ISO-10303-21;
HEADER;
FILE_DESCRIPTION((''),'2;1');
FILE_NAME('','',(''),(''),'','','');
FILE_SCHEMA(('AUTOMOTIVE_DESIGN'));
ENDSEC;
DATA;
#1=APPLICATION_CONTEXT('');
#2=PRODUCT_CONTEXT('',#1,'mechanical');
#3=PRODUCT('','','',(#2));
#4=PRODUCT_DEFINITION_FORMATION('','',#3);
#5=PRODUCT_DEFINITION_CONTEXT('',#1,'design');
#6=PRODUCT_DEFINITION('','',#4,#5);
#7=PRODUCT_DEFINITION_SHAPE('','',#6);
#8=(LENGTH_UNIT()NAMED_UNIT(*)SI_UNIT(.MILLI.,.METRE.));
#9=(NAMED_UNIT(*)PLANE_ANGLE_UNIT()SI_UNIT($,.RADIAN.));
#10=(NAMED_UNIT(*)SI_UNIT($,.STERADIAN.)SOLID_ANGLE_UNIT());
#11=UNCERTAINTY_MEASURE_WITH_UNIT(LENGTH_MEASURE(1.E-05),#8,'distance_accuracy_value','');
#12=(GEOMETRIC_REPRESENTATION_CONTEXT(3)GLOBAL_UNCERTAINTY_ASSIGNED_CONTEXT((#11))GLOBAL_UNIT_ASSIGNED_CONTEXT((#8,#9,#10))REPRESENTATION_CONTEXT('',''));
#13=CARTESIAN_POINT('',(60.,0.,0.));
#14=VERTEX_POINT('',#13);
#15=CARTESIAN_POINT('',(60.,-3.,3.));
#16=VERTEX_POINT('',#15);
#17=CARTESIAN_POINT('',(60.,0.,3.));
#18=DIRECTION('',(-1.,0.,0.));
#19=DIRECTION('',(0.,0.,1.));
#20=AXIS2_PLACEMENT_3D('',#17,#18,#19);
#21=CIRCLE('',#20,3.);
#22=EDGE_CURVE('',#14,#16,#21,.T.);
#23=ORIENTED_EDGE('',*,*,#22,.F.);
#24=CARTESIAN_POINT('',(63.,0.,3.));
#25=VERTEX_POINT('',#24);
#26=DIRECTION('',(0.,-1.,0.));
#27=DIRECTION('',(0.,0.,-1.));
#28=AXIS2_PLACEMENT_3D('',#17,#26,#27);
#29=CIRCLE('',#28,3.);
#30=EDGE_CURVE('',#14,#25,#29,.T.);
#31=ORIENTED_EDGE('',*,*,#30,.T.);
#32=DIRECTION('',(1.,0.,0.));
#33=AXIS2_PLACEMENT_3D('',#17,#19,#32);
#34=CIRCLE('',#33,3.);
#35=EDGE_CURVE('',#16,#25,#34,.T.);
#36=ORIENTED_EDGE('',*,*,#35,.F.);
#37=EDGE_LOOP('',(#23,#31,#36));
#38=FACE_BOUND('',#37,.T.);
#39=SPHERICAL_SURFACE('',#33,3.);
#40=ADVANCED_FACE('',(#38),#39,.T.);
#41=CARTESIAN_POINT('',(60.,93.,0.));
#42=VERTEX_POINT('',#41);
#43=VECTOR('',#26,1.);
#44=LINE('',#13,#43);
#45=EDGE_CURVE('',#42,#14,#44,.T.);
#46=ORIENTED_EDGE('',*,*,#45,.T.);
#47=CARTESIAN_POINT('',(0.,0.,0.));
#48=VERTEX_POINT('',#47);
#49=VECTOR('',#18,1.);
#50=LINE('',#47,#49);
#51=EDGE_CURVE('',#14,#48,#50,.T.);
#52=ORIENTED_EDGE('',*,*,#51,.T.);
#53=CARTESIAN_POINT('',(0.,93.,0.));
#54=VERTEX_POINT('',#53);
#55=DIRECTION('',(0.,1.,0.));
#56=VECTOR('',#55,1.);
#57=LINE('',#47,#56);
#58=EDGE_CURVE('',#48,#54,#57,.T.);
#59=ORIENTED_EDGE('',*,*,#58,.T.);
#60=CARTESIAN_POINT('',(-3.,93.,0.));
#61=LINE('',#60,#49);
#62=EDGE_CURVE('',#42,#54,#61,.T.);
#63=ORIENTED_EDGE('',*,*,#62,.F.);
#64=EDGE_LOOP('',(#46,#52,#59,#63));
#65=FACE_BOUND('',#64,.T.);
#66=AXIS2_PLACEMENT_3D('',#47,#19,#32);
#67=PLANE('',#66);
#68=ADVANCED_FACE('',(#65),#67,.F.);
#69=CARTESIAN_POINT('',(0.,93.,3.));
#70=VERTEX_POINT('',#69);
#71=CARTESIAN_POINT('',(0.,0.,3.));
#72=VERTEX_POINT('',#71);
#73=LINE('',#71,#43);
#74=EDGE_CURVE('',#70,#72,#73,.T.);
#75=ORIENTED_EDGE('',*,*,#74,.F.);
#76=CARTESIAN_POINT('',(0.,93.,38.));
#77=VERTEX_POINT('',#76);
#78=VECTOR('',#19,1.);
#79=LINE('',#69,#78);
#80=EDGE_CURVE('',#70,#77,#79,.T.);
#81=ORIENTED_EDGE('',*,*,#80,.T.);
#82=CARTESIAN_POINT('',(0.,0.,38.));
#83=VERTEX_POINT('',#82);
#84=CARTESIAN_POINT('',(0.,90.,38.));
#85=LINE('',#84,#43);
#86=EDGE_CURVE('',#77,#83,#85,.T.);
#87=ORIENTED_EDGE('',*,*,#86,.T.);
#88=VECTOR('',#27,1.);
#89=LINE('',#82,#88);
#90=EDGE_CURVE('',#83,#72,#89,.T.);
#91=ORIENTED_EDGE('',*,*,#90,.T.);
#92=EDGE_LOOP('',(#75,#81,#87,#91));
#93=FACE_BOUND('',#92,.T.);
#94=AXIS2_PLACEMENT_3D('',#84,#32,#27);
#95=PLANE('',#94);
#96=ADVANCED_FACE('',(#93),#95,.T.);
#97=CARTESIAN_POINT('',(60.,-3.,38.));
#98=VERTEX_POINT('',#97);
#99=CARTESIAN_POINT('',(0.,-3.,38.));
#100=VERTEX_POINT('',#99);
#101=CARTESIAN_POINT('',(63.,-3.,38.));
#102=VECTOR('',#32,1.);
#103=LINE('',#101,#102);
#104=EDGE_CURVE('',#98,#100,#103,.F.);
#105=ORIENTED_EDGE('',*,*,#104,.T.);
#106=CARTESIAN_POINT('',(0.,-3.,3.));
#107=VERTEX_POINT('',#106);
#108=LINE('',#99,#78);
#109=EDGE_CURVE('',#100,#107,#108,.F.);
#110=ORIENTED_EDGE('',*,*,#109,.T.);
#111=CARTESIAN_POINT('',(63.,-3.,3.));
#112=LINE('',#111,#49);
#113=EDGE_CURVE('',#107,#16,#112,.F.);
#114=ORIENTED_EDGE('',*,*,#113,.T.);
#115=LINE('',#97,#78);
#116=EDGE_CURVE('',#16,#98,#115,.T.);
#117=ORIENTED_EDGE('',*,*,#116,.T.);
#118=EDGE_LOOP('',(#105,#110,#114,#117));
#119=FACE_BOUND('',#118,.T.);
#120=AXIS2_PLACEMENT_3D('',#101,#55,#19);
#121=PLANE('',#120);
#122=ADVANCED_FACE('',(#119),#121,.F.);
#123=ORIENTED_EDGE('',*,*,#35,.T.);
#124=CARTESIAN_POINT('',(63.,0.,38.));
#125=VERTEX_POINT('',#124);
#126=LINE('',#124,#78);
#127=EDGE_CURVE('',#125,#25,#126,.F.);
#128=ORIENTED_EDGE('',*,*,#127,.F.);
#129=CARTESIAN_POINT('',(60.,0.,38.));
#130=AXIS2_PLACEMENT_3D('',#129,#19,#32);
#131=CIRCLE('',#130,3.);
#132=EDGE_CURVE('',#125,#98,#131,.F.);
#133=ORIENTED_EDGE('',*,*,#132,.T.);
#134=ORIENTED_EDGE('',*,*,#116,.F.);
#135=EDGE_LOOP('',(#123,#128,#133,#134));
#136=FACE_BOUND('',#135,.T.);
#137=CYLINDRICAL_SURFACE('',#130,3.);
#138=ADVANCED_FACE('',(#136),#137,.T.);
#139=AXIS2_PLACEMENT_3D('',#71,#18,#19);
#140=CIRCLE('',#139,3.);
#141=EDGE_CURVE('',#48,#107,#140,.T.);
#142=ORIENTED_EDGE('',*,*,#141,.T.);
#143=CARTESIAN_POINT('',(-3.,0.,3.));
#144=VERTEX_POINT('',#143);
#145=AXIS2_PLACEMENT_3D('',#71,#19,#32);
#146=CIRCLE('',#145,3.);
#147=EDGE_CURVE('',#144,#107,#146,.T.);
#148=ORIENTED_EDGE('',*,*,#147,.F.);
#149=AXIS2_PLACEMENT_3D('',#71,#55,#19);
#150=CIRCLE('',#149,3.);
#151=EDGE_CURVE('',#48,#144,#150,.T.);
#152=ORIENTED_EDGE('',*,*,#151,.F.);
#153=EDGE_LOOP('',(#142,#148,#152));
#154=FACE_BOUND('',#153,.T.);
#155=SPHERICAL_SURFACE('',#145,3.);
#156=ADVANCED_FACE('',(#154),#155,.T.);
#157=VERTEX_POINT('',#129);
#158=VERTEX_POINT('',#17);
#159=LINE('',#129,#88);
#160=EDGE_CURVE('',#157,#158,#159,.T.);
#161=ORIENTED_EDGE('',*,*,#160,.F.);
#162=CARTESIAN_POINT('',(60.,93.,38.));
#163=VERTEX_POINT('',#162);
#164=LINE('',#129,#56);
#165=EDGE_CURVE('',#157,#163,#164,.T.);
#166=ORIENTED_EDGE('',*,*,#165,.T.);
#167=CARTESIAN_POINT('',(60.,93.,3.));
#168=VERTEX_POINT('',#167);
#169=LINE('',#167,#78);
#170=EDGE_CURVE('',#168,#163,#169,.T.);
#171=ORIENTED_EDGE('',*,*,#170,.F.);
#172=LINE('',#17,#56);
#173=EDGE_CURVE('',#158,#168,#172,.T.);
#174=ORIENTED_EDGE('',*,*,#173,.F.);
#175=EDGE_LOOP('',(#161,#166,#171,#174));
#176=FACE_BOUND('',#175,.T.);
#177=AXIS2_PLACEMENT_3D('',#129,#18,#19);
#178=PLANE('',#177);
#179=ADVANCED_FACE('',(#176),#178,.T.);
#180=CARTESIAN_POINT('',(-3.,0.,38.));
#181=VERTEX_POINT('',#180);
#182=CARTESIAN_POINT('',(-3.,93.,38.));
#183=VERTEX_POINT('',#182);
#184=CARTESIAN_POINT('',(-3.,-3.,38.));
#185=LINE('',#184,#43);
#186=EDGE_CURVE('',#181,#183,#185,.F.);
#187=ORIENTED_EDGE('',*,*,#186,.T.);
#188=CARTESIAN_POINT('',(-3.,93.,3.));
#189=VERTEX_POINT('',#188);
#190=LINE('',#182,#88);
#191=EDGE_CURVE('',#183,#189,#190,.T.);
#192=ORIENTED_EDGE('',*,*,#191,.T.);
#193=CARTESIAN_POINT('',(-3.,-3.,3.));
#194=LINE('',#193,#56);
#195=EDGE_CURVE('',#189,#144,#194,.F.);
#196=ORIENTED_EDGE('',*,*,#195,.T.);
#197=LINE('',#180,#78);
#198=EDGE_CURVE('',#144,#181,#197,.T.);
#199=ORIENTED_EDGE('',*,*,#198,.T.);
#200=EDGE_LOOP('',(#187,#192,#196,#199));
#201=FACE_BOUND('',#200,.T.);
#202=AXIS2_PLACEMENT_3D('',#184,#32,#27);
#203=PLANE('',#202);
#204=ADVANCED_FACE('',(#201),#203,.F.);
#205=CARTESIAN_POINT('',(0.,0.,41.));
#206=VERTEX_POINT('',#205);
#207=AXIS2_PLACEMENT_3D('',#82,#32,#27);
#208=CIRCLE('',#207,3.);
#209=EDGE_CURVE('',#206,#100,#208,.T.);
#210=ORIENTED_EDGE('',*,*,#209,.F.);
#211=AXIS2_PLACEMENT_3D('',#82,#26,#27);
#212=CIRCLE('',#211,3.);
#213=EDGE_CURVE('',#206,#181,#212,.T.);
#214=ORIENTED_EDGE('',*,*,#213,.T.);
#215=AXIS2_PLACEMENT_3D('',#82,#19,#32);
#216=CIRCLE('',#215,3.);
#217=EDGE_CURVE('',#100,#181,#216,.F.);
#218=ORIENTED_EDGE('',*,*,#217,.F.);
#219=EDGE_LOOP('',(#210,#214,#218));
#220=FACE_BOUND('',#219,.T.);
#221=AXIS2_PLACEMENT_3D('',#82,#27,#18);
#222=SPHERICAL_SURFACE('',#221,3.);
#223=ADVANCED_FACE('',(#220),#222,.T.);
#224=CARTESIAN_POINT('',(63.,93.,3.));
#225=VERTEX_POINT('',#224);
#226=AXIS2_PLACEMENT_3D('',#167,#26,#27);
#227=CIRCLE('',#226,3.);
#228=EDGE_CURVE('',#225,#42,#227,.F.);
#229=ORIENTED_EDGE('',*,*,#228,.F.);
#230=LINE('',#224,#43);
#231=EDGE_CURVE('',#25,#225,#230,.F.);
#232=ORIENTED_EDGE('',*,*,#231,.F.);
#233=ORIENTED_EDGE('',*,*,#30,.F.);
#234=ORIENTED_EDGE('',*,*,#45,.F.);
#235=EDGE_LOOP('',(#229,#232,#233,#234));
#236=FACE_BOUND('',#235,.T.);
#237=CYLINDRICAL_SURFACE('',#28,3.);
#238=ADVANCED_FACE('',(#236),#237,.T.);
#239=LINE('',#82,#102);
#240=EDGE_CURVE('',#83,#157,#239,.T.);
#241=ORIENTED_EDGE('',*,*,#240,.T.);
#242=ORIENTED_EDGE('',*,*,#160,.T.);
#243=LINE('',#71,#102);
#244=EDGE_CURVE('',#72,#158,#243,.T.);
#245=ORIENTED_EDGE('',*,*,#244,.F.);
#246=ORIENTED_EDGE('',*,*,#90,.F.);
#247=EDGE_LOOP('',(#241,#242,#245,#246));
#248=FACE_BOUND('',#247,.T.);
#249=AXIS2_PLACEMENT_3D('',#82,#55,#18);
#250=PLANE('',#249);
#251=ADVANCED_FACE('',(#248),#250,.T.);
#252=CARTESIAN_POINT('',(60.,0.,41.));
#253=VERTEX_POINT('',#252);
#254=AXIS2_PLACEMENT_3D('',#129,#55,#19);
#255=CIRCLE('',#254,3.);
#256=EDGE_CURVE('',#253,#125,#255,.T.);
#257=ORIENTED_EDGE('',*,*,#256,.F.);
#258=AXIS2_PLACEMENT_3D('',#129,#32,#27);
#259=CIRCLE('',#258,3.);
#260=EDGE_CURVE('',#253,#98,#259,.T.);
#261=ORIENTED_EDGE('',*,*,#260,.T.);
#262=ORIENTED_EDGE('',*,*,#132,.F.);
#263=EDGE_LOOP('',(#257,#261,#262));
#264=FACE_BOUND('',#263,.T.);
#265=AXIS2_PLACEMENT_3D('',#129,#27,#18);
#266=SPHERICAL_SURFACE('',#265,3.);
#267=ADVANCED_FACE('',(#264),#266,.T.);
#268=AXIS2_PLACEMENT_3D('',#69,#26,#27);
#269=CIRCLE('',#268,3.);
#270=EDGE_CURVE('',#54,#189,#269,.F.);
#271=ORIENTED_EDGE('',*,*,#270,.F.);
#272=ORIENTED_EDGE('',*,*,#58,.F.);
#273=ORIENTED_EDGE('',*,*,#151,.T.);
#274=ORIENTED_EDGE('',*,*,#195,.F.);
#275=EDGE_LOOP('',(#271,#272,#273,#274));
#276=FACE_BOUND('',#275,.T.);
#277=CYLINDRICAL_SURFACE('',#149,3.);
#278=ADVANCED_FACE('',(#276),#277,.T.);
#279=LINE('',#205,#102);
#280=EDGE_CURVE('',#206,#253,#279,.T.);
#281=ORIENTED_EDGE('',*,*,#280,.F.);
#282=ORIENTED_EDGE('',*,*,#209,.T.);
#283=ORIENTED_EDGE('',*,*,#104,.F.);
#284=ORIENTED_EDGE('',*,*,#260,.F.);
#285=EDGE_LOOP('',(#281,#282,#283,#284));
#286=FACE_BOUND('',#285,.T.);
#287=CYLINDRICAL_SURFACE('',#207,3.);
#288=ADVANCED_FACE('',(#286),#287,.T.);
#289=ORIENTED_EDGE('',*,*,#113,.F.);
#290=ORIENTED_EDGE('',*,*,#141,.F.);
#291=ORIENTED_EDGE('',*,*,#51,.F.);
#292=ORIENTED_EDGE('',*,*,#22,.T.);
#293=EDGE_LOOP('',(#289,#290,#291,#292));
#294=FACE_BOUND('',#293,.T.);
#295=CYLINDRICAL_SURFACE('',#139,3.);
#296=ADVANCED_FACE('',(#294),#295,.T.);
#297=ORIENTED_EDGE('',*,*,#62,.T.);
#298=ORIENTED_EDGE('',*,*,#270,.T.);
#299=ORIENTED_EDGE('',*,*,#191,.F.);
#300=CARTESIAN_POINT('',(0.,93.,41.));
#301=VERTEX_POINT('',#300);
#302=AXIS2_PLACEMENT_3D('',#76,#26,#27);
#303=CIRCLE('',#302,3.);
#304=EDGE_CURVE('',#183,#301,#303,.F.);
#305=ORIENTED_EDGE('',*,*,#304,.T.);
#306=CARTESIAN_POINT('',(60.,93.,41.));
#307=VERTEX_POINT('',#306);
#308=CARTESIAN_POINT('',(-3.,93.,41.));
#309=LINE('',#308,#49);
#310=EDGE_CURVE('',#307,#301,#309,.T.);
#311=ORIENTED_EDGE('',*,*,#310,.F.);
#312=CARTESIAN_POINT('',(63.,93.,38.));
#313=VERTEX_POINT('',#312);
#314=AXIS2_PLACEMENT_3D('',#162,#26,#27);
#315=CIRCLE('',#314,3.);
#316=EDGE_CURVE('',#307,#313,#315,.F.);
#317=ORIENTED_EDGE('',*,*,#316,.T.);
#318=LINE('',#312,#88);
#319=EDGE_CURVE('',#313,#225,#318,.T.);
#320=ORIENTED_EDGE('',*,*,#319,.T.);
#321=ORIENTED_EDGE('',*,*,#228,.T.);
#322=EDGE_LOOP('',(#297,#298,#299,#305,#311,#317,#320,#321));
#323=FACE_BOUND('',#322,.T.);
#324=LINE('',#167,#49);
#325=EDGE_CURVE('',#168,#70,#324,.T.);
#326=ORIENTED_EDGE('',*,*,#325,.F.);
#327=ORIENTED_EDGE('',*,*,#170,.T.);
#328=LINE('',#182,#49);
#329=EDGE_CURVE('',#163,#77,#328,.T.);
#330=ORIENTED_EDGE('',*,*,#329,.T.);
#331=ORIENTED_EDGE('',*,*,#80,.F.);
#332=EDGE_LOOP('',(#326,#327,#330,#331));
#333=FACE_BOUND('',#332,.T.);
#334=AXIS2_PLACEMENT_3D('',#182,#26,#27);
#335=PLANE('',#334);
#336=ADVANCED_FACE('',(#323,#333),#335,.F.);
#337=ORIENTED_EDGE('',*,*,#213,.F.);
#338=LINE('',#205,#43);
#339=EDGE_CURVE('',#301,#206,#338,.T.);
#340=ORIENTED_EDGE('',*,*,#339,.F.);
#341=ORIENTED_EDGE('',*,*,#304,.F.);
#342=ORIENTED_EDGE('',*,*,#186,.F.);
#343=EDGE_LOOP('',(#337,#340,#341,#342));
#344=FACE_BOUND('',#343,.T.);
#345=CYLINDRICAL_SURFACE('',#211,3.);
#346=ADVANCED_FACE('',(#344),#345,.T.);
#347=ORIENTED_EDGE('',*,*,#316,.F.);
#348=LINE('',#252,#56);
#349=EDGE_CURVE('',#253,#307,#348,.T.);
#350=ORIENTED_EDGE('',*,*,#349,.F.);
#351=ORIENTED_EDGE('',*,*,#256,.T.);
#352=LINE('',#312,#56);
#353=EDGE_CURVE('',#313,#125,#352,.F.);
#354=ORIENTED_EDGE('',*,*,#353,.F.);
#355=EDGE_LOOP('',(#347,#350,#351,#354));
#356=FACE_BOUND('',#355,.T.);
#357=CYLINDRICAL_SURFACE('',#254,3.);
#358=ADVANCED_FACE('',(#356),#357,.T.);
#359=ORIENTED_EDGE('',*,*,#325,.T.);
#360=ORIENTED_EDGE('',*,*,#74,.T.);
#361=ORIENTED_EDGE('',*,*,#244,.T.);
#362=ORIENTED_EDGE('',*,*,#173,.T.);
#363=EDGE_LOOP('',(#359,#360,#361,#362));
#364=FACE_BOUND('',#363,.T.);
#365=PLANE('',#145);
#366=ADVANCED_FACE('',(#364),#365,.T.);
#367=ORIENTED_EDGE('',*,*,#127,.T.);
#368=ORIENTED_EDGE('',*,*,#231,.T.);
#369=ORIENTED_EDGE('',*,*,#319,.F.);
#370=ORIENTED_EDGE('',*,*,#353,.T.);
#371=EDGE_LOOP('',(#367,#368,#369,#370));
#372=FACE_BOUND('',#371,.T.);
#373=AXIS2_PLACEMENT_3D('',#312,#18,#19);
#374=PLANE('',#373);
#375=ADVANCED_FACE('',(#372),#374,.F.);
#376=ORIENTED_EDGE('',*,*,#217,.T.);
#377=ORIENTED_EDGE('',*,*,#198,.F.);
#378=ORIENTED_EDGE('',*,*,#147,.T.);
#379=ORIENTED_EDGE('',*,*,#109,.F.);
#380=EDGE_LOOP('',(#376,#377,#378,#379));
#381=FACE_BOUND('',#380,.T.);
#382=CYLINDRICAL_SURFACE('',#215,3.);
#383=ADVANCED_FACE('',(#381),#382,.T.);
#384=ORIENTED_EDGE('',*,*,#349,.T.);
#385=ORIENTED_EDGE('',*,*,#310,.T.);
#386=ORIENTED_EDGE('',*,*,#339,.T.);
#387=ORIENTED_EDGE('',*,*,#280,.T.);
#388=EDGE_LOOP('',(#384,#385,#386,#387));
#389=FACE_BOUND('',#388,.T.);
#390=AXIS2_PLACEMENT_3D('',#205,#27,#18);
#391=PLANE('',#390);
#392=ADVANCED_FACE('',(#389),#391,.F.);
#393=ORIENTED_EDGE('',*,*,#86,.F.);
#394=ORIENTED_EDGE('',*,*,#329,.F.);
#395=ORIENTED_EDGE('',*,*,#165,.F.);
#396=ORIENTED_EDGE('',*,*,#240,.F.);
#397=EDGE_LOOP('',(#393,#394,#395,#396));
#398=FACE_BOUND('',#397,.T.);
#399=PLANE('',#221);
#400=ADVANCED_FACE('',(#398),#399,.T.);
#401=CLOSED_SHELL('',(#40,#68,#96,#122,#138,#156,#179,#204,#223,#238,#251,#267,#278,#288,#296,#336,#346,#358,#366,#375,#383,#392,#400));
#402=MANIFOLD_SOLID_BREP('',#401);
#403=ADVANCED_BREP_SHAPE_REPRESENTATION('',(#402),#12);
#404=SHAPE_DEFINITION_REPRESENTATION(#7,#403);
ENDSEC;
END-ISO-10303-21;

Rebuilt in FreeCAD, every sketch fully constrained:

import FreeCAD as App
import Part
import Sketcher

V = App.Vector


def edges_at(feature, points):
    """Names of the edges that pass closest to the given points."""
    edges = feature.Shape.Edges
    near = lambda p: min(range(len(edges)), key=lambda i: edges[i].distToShape(Part.Vertex(*p))[0])
    return sorted({f"Edge{near(p) + 1}" for p in points})

doc = App.newDocument("Part")
params = doc.addObject("Spreadsheet::Sheet", "Params")
for row, (alias, value) in enumerate([
    ("sketch1_width", "60 mm"),
    ("sketch1_height", "90 mm"),
    ("pad1_length", "3 mm"),
    ("sketch2_width", "66 mm"),
    ("sketch2_width2", "60 mm"),
    ("sketch2_height", "96 mm"),
    ("sketch2_height2", "90 mm"),
    ("pad2_length", "38 mm"),
    ("sketch3_width", "60 mm"),
    ("sketch3_height", "3 mm"),
    ("pocket1_length", "35 mm"),
    ("sketch4_width", "66 mm"),
    ("sketch4_height", "96 mm"),
    ("pad3_length", "3 mm"),
    ("fillet_radius", "3 mm"),
    ("fillet2_radius", "3 mm"),
    ("fillet3_radius", "3 mm"),
    ("fillet4_radius", "3 mm"),
], start=1):
    params.set(f"A{row}", alias)
    params.set(f"B{row}", "=" + value)
    params.setAlias(f"B{row}", alias)

body = doc.addObject("PartDesign::Body", "Body")

# Sketch on XY plane
sketch1 = body.newObject("Sketcher::SketchObject", "Sketch")
sketch1.AttachmentSupport = (doc.getObject("XY_Plane"), [""])
sketch1.MapMode = "FlatFace"
sketch1.addGeometry([
    Part.LineSegment(V(0, 0, 0), V(60, 0, 0)),
    Part.LineSegment(V(60, 0, 0), V(60, 90, 0)),
    Part.LineSegment(V(60, 90, 0), V(0, 90, 0)),
    Part.LineSegment(V(0, 90, 0), V(0, 0, 0)),
], False)
sketch1.addConstraint([
    Sketcher.Constraint("Coincident", 0, 2, 1, 1),
    Sketcher.Constraint("Coincident", 1, 2, 2, 1),
    Sketcher.Constraint("Coincident", 2, 2, 3, 1),
    Sketcher.Constraint("Coincident", 3, 2, 0, 1),
    Sketcher.Constraint("Horizontal", 0),
    Sketcher.Constraint("Vertical", 1),
    Sketcher.Constraint("Horizontal", 2),
    Sketcher.Constraint("Vertical", 3),
    Sketcher.Constraint("Coincident", 3, 2, -1, 1),
    Sketcher.Constraint("DistanceX", 0, 1, 0, 2, 60.0),
    Sketcher.Constraint("DistanceY", 1, 1, 1, 2, 90.0),
])
sketch1.setExpression("Constraints[9]", "Params.sketch1_width")
sketch1.setExpression("Constraints[10]", "Params.sketch1_height")
pad1 = body.newObject("PartDesign::Pad", "Pad")
pad1.Profile = sketch1
pad1.setExpression("Length", "Params.pad1_length")

# Sketch on XY plane
sketch2 = body.newObject("Sketcher::SketchObject", "Sketch001")
sketch2.AttachmentSupport = (doc.getObject("XY_Plane"), [""])
sketch2.MapMode = "FlatFace"
sketch2.addGeometry([
    Part.LineSegment(V(-3, -3, 0), V(63, -3, 0)),  # 0
    Part.LineSegment(V(63, -3, 0), V(63, 93, 0)),  # 1
    Part.LineSegment(V(63, 93, 0), V(-3, 93, 0)),  # 2
    Part.LineSegment(V(-3, 93, 0), V(-3, -3, 0)),  # 3
    Part.LineSegment(V(60, 90, 0), V(60, 0, 0)),  # 4
    Part.LineSegment(V(60, 0, 0), V(0, 0, 0)),  # 5
    Part.LineSegment(V(0, 0, 0), V(0, 90, 0)),  # 6
    Part.LineSegment(V(0, 90, 0), V(60, 90, 0)),  # 7
], False)
sketch2.addConstraint([
    Sketcher.Constraint("Coincident", 0, 2, 1, 1),
    Sketcher.Constraint("Coincident", 1, 2, 2, 1),
    Sketcher.Constraint("Coincident", 2, 2, 3, 1),
    Sketcher.Constraint("Coincident", 3, 2, 0, 1),
    Sketcher.Constraint("Coincident", 4, 2, 5, 1),
    Sketcher.Constraint("Coincident", 5, 2, 6, 1),
    Sketcher.Constraint("Coincident", 6, 2, 7, 1),
    Sketcher.Constraint("Coincident", 7, 2, 4, 1),
    Sketcher.Constraint("Horizontal", 0),
    Sketcher.Constraint("Vertical", 1),
    Sketcher.Constraint("Horizontal", 2),
    Sketcher.Constraint("Vertical", 3),
    Sketcher.Constraint("Vertical", 4),
    Sketcher.Constraint("Horizontal", 5),
    Sketcher.Constraint("Vertical", 6),
    Sketcher.Constraint("Horizontal", 7),
    Sketcher.Constraint("Coincident", 5, 2, -1, 1),
    Sketcher.Constraint("DistanceX", 0, 1, 0, 2, 66.0),
    Sketcher.Constraint("DistanceX", 5, 2, 5, 1, 60.0),
    Sketcher.Constraint("DistanceY", 1, 1, 1, 2, 96.0),
    Sketcher.Constraint("DistanceY", 4, 2, 4, 1, 90.0),
    Sketcher.Constraint("DistanceX", -1, 1, 0, 2, 63.0),
    Sketcher.Constraint("DistanceY", 0, 2, -1, 1, 3.0),
])
sketch2.setExpression("Constraints[17]", "Params.sketch2_width")
sketch2.setExpression("Constraints[18]", "Params.sketch2_width2")
sketch2.setExpression("Constraints[19]", "Params.sketch2_height")
sketch2.setExpression("Constraints[20]", "Params.sketch2_height2")
pad2 = body.newObject("PartDesign::Pad", "Pad001")
pad2.Profile = sketch2
pad2.setExpression("Length", "Params.pad2_length")

# Sketch on XY plane
sketch3 = body.newObject("Sketcher::SketchObject", "Sketch002")
sketch3.AttachmentSupport = (doc.getObject("XY_Plane"), [""])
sketch3.MapMode = "FlatFace"
sketch3.AttachmentOffset = App.Placement(V(0, 0, 38), App.Rotation())
sketch3.addGeometry([
    Part.LineSegment(V(0, 93, 0), V(0, 90, 0)),
    Part.LineSegment(V(0, 90, 0), V(60, 90, 0)),
    Part.LineSegment(V(60, 90, 0), V(60, 93, 0)),
    Part.LineSegment(V(60, 93, 0), V(0, 93, 0)),
], False)
sketch3.addConstraint([
    Sketcher.Constraint("Coincident", 0, 2, 1, 1),
    Sketcher.Constraint("Coincident", 1, 2, 2, 1),
    Sketcher.Constraint("Coincident", 2, 2, 3, 1),
    Sketcher.Constraint("Coincident", 3, 2, 0, 1),
    Sketcher.Constraint("Vertical", 0),
    Sketcher.Constraint("Horizontal", 1),
    Sketcher.Constraint("Vertical", 2),
    Sketcher.Constraint("Horizontal", 3),
    Sketcher.Constraint("PointOnObject", 0, 2, -2),
    Sketcher.Constraint("DistanceX", 1, 1, 1, 2, 60.0),
    Sketcher.Constraint("DistanceY", 0, 2, 0, 1, 3.0),
    Sketcher.Constraint("DistanceY", -1, 1, 0, 2, 90.0),
])
sketch3.setExpression("Constraints[9]", "Params.sketch3_width")
sketch3.setExpression("Constraints[10]", "Params.sketch3_height")
pocket1 = body.newObject("PartDesign::Pocket", "Pocket")
pocket1.Profile = sketch3
pocket1.setExpression("Length", "Params.pocket1_length")

# Sketch on XY plane
sketch4 = body.newObject("Sketcher::SketchObject", "Sketch003")
sketch4.AttachmentSupport = (doc.getObject("XY_Plane"), [""])
sketch4.MapMode = "FlatFace"
sketch4.AttachmentOffset = App.Placement(V(0, 0, 38), App.Rotation())
sketch4.addGeometry([
    Part.LineSegment(V(-3, 93, 0), V(-3, -3, 0)),
    Part.LineSegment(V(-3, -3, 0), V(63, -3, 0)),
    Part.LineSegment(V(63, -3, 0), V(63, 93, 0)),
    Part.LineSegment(V(63, 93, 0), V(-3, 93, 0)),
], False)
sketch4.addConstraint([
    Sketcher.Constraint("Coincident", 0, 2, 1, 1),
    Sketcher.Constraint("Coincident", 1, 2, 2, 1),
    Sketcher.Constraint("Coincident", 2, 2, 3, 1),
    Sketcher.Constraint("Coincident", 3, 2, 0, 1),
    Sketcher.Constraint("Vertical", 0),
    Sketcher.Constraint("Horizontal", 1),
    Sketcher.Constraint("Vertical", 2),
    Sketcher.Constraint("Horizontal", 3),
    Sketcher.Constraint("DistanceX", 1, 1, 1, 2, 66.0),
    Sketcher.Constraint("DistanceY", 0, 2, 0, 1, 96.0),
    Sketcher.Constraint("DistanceX", 0, 2, -1, 1, 3.0),
    Sketcher.Constraint("DistanceY", 0, 2, -1, 1, 3.0),
])
sketch4.setExpression("Constraints[8]", "Params.sketch4_width")
sketch4.setExpression("Constraints[9]", "Params.sketch4_height")
pad3 = body.newObject("PartDesign::Pad", "Pad002")
pad3.Profile = sketch4
pad3.setExpression("Length", "Params.pad3_length")
doc.recompute()

fillet = body.newObject("PartDesign::Fillet", "Fillet")
fillet.Base = (pad3, edges_at(pad3, [(-3, -3, 20.5)]))
fillet.setExpression("Radius", "Params.fillet_radius")
doc.recompute()

fillet2 = body.newObject("PartDesign::Fillet", "Fillet001")
fillet2.Base = (fillet, edges_at(fillet, [(63, -3, 20.5)]))
fillet2.setExpression("Radius", "Params.fillet2_radius")
doc.recompute()

fillet3 = body.newObject("PartDesign::Fillet", "Fillet002")
fillet3.Base = (fillet2, edges_at(fillet2, [
    (-3, 46.5, 41),
    (30, -3, 41),
    (-2.121, -2.121, 41),
    (63, 46.5, 41),
    (62.121, -2.121, 41),
]))
fillet3.setExpression("Radius", "Params.fillet3_radius")
doc.recompute()

fillet4 = body.newObject("PartDesign::Fillet", "Fillet003")
fillet4.Base = (fillet3, edges_at(fillet3, [
    (-3, 46.5, 0),
    (30, -3, 0),
    (-2.121, -2.121, 0),
    (63, 46.5, 0),
    (62.121, -2.121, 0),
]))
fillet4.setExpression("Radius", "Params.fillet4_radius")

doc.recompute()
